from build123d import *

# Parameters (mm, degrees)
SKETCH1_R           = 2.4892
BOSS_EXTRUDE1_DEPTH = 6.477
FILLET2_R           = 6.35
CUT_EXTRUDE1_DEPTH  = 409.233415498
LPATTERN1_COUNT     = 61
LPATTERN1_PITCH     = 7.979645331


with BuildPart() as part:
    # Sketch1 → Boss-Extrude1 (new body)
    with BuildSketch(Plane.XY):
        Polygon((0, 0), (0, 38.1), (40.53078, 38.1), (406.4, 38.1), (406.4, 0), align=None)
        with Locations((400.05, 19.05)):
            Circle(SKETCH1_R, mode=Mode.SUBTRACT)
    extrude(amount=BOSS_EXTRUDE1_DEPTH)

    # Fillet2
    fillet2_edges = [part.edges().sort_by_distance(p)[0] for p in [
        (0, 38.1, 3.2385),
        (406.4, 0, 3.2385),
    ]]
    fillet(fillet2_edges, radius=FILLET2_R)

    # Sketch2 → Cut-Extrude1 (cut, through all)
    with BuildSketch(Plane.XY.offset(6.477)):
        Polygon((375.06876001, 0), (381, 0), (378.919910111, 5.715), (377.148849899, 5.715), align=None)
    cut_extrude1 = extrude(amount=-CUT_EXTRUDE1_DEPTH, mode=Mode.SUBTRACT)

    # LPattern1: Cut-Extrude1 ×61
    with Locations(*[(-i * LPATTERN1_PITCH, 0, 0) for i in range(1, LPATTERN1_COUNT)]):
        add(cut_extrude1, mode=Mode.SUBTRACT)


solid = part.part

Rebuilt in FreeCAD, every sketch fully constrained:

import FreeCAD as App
import Part
import Sketcher

V = App.Vector
Q = App.Units.Quantity


def edges_at(feature, points):
    """Names of the edges that pass closest to the given points."""
    edges = feature.Shape.Edges
    near = lambda p: min(range(len(edges)), key=lambda i: edges[i].distToShape(Part.Vertex(*p))[0])
    return sorted({f"Edge{near(p) + 1}" for p in points})


def add_polygon(sketch, points):
    """Adds a closed chain of lines whose ends are joined by coincident constraints."""
    first, n = sketch.GeometryCount, len(points)
    for a, b in zip(points, points[1:] + points[:1]):
        sketch.addGeometry(Part.LineSegment(App.Vector(*a, 0), App.Vector(*b, 0)), False)
    for i in range(n):
        sketch.addConstraint(Sketcher.Constraint("Coincident", first + i, 2, first + (i + 1) % n, 1))

doc = App.newDocument("Part")
body = doc.addObject("PartDesign::Body", "Body")

# Sketch on XY plane
sketch1 = body.newObject("Sketcher::SketchObject", "Sketch")
sketch1.AttachmentSupport = (doc.getObject("XY_Plane"), [""])
sketch1.MapMode = "FlatFace"
add_polygon(sketch1, [(0, 38.1), (0, 0), (406.4, 0), (406.4, 38.1)])  # lines 0-3
sketch1.addGeometry(Part.Circle(V(400.1, 19.1, 0), V(0, 0, 1), 2.5), False)  # 4
sketch1.addConstraint([
    Sketcher.Constraint("Vertical", 0),
    Sketcher.Constraint("Horizontal", 1),
    Sketcher.Constraint("Vertical", 2),
    Sketcher.Constraint("Horizontal", 3),
    Sketcher.Constraint("Coincident", 0, 2, -1, 1),
    Sketcher.Constraint("DistanceX", 1, 1, 1, 2, Q("16 in")),
    Sketcher.Constraint("Diameter", 4, Q("0.196 in")),
    Sketcher.Constraint("DistanceY", 0, 2, 0, 1, Q("1.5 in")),
    Sketcher.Constraint("DistanceX", -1, 1, 4, 3, Q("15.75 in")),
    Sketcher.Constraint("DistanceY", -1, 1, 4, 3, Q("0.75 in")),
])
pad1 = body.newObject("PartDesign::Pad", "Pad")
pad1.Profile = sketch1
pad1.Length = Q("0.255 in")
doc.recompute()

fillet = body.newObject("PartDesign::Fillet", "Fillet")
fillet.Base = (pad1, edges_at(pad1, [(0, 38.1, 3.239), (406.4, 0, 3.239)]))
fillet.Radius = Q("0.25 in")

# Sketch on XY plane
sketch2 = body.newObject("Sketcher::SketchObject", "Sketch001")
sketch2.AttachmentSupport = (doc.getObject("XY_Plane"), [""])
sketch2.MapMode = "FlatFace"
sketch2.AttachmentOffset = App.Placement(V(0, 0, 0.255 * 25.4), App.Rotation())
add_polygon(sketch2, [(375.1, 0), (381, 0), (378.9, 5.7), (377.1, 5.7)])  # lines 0-3
sketch2.addConstraint([
    Sketcher.Constraint("Horizontal", 0),
    Sketcher.Constraint("Horizontal", 2),
    Sketcher.Constraint("PointOnObject", 0, 2, -1),
    Sketcher.Constraint("Equal", 1, 3),
    Sketcher.Constraint("DistanceX", -1, 1, 0, 2, Q("15 in")),
    Sketcher.Constraint("Angle", 1, Q("110 deg")),
    Sketcher.Constraint("DistanceY", -1, 1, 1, 2, Q("0.225 in")),
    Sketcher.Constraint("DistanceX", 0, 1, 0, 2, 5.93124),
])
pocket1 = body.newObject("PartDesign::Pocket", "Pocket")
pocket1.Profile = sketch2
pocket1.Type = "ThroughAll"
doc.recompute()

linearpattern = body.newObject("PartDesign::LinearPattern", "LinearPattern")
linearpattern.Originals = [pocket1]
linearpattern.Direction = (doc.getObject("X_Axis"), [""])
linearpattern.Mode = "offset"
linearpattern.Offset = 7.979645
linearpattern.Occurrences = 61
linearpattern.Reversed = True
body.Tip = linearpattern

doc.recompute()
